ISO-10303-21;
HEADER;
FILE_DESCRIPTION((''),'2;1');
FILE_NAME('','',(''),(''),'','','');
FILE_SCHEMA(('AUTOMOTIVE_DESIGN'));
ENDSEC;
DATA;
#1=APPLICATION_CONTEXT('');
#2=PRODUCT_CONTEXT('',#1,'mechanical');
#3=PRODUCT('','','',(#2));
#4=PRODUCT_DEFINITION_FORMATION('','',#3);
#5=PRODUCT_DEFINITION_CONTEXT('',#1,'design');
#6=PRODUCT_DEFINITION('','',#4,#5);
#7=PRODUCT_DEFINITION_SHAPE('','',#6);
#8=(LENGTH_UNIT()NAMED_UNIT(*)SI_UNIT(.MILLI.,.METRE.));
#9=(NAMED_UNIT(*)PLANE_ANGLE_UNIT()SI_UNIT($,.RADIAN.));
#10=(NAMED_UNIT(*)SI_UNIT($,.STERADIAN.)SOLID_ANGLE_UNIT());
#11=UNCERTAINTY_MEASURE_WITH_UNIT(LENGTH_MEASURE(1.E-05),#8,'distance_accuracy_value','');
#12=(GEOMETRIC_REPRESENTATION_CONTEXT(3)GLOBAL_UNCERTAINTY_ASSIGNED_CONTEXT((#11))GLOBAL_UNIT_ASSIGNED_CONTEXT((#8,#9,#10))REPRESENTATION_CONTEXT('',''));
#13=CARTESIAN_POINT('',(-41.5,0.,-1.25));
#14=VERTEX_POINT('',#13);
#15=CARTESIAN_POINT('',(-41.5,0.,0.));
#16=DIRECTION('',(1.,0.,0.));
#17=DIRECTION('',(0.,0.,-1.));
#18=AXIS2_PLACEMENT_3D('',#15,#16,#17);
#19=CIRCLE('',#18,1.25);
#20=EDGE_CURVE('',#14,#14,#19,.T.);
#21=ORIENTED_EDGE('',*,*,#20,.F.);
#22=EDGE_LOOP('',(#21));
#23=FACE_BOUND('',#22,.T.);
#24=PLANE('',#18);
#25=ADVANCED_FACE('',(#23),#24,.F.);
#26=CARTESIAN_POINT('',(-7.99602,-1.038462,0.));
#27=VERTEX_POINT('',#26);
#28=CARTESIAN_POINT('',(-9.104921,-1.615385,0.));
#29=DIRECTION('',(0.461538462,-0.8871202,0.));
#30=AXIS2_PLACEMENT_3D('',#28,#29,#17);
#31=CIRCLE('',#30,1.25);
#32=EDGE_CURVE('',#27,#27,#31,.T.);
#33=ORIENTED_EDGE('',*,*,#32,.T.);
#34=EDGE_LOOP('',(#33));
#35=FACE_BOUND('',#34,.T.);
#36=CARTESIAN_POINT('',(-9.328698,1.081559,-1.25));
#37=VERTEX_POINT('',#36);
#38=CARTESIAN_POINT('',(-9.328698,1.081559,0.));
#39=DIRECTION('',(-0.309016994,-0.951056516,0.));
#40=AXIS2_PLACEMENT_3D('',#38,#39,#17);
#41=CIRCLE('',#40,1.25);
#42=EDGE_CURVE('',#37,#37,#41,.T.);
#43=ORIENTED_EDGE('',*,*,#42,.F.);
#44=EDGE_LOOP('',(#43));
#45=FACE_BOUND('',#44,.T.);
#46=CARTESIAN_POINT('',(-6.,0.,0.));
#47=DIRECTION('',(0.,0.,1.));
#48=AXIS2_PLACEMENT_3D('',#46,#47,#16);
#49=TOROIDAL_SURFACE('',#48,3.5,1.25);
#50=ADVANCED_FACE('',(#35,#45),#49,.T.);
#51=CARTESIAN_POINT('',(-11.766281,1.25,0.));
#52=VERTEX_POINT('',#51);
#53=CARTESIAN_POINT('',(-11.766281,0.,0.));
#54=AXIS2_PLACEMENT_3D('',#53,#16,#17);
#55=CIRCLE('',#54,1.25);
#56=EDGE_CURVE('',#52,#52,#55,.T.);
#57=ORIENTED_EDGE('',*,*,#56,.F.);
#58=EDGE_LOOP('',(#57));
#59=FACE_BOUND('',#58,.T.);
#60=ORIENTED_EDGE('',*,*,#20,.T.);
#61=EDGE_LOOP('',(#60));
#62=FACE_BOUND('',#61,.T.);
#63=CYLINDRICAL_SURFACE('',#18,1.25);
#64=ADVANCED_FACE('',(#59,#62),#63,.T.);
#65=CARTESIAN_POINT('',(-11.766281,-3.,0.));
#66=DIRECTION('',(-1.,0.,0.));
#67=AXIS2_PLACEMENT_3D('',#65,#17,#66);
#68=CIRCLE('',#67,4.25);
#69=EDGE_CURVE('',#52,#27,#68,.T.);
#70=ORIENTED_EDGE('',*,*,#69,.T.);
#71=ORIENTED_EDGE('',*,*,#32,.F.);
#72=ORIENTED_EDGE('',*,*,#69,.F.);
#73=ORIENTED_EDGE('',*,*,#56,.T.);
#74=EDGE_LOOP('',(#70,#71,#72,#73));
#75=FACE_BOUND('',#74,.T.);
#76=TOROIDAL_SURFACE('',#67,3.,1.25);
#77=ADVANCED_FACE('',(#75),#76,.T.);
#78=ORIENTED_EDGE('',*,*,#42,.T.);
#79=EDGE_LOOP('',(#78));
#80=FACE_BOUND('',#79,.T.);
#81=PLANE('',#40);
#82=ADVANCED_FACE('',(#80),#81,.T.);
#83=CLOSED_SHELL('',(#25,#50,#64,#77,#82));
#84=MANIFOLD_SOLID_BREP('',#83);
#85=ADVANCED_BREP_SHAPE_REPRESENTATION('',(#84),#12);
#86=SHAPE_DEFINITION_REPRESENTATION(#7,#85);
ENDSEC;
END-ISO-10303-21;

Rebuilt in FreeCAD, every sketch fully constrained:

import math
import FreeCAD as App
import Part
import Sketcher

doc = App.newDocument("Part")
params = doc.addObject("Spreadsheet::Sheet", "Params")
for row, (alias, value) in enumerate([
    ("sketch1_diameter", "2.5 mm"),
    ("sketch2_radius", "3 mm"),
    ("sketch2_radius2", "3.5 mm"),
], start=1):
    params.set(f"A{row}", alias)
    params.set(f"B{row}", "=" + value)
    params.setAlias(f"B{row}", alias)

body = doc.addObject("PartDesign::Body", "Body")

sketch1 = doc.addObject("Sketcher::SketchObject", "Sketch")
body.addObject(sketch1)
sketch1.AttachmentSupport = (doc.YZ_Plane, [""])
sketch1.MapMode = "FlatFace"
sketch1.AttachmentOffset = App.Placement(App.Vector(0, 0, -41.5), App.Rotation())
sketch1.addGeometry(Part.Circle(App.Vector(0, 0, 0), App.Vector(0, 0, 1), 1.2), False)
sketch1.addConstraint(Sketcher.Constraint("Coincident", 0, 3, -1, 1))
sketch1.addConstraint(Sketcher.Constraint("Diameter", 0, 2.5))
sketch1.setExpression("Constraints[1]", "Params.sketch1_diameter")

sketch2 = doc.addObject("Sketcher::SketchObject", "Sketch001")
body.addObject(sketch2)
sketch2.AttachmentSupport = (doc.XY_Plane, [""])
sketch2.MapMode = "FlatFace"
sketch2.addGeometry(Part.LineSegment(App.Vector(-41.5, 0, 0), App.Vector(-11.8, 0, 0)), False)
sketch2.addGeometry(Part.ArcOfCircle(Part.Circle(App.Vector(-11.8, -3, 0), App.Vector(0, 0, 1), 3), math.radians(27), math.radians(90)), False)
sketch2.addGeometry(Part.ArcOfCircle(Part.Circle(App.Vector(-6, 0, 0), App.Vector(0, 0, 1), 3.5), math.radians(-153), math.radians(162)), False)
sketch2.addConstraint(Sketcher.Constraint("Tangent", 0, 2, 1, 2))
sketch2.addConstraint(Sketcher.Constraint("Tangent", 1, 1, 2, 1))
sketch2.addConstraint(Sketcher.Constraint("Horizontal", 0))
sketch2.addConstraint(Sketcher.Constraint("PointOnObject", 2, 3, -1))
sketch2.addConstraint(Sketcher.Constraint("PointOnObject", 0, 1, -1))
sketch2.addConstraint(Sketcher.Constraint("Radius", 1, 3.0))
sketch2.addConstraint(Sketcher.Constraint("Radius", 2, 3.5))
sketch2.addConstraint(Sketcher.Constraint("DistanceX", 2, 3, -1, 1, 6.0))
sketch2.addConstraint(Sketcher.Constraint("DistanceX", 0, 1, -1, 1, 41.5))
sketch2.addConstraint(Sketcher.Constraint("DistanceY", -1, 1, 2, 2, 1.081559))
sketch2.setExpression("Constraints[5]", "Params.sketch2_radius")
sketch2.setExpression("Constraints[6]", "Params.sketch2_radius2")
doc.recompute()

additivepipe = doc.addObject("PartDesign::AdditivePipe", "AdditivePipe")
body.addObject(additivepipe)
additivepipe.Profile = sketch1
additivepipe.Spine = (sketch2, ["Edge1", "Edge2", "Edge3"])

doc.recompute()
